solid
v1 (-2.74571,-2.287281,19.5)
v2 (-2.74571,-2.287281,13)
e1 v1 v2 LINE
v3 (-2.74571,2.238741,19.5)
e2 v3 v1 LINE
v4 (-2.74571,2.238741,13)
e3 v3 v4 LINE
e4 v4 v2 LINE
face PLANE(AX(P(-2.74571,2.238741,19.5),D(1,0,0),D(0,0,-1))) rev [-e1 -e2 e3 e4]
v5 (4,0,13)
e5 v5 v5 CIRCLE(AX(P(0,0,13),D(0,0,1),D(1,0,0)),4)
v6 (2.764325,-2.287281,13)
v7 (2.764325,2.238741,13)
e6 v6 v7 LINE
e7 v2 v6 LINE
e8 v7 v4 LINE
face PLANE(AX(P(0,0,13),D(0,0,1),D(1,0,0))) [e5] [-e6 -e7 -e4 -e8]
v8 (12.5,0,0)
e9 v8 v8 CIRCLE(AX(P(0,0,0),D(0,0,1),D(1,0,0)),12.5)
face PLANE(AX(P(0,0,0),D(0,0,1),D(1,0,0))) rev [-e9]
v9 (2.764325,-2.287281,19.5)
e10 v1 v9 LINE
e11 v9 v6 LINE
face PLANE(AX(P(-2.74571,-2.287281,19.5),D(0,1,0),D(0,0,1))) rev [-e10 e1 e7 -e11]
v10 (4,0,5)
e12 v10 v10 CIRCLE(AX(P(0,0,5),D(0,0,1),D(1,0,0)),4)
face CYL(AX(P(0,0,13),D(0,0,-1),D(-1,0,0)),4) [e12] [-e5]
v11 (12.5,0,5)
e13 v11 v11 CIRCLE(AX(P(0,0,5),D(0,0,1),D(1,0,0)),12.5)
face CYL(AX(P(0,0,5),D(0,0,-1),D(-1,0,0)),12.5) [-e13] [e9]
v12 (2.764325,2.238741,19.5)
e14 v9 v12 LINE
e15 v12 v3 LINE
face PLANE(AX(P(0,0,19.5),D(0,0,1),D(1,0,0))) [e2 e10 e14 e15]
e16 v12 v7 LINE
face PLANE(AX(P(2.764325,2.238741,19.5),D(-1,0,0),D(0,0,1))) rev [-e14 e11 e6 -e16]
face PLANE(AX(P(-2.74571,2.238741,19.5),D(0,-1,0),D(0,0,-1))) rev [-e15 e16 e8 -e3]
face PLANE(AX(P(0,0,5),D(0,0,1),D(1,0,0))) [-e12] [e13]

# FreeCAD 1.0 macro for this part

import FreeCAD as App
import Part
import Sketcher
from FreeCAD import Vector
Q = App.Units.Quantity

doc = App.newDocument("Part")
params = doc.addObject("Spreadsheet::Sheet", "Params")
for row, (alias, value) in enumerate([
    ("sketch1_diameter", "25 mm"),
    ("pad1_length", "5 mm"),
    ("sketch2_diameter", "8 mm"),
    ("pad2_length", "8 mm"),
    ("pad3_length", "6.5 mm"),
], start=1):
    params.set(f"A{row}", alias)
    params.set(f"B{row}", "=" + value)
    params.setAlias(f"B{row}", alias)

body = doc.addObject("PartDesign::Body", "Body")

sketch1 = doc.addObject("Sketcher::SketchObject", "Sketch")
body.addObject(sketch1)
sketch1.AttachmentSupport = (doc.XY_Plane, [""])
sketch1.MapMode = "FlatFace"
sketch1.addGeometry(Part.Circle(Vector(0, 0, 0), Vector(0, 0, 1), 12), False)
sketch1.addConstraint(Sketcher.Constraint("Coincident", 0, 3, -1, 1))
sketch1.addConstraint(Sketcher.Constraint("Diameter", 0, Q("25 mm")))
sketch1.setExpression("Constraints[1]", "Params.sketch1_diameter")
pad1 = doc.addObject("PartDesign::Pad", "Pad")
body.addObject(pad1)
pad1.Profile = sketch1
pad1.setExpression("Length", "Params.pad1_length")

sketch2 = doc.addObject("Sketcher::SketchObject", "Sketch001")
body.addObject(sketch2)
sketch2.AttachmentSupport = (doc.XY_Plane, [""])
sketch2.MapMode = "FlatFace"
sketch2.AttachmentOffset = App.Placement(Vector(0, 0, 5), App.Rotation())
sketch2.addGeometry(Part.Circle(Vector(0, 0, 0), Vector(0, 0, 1), 4), False)
sketch2.addConstraint(Sketcher.Constraint("Coincident", 0, 3, -1, 1))
sketch2.addConstraint(Sketcher.Constraint("Diameter", 0, Q("8 mm")))
sketch2.setExpression("Constraints[1]", "Params.sketch2_diameter")
pad2 = doc.addObject("PartDesign::Pad", "Pad001")
body.addObject(pad2)
pad2.Profile = sketch2
pad2.setExpression("Length", "Params.pad2_length")

sketch3 = doc.addObject("Sketcher::SketchObject", "Sketch002")
body.addObject(sketch3)
sketch3.AttachmentSupport = (doc.XY_Plane, [""])
sketch3.MapMode = "FlatFace"
sketch3.AttachmentOffset = App.Placement(Vector(0, 0, 13), App.Rotation())
sketch3.addGeometry(Part.LineSegment(Vector(-2.7, 2.2, 0), Vector(-2.7, -2.3, 0)), False)
sketch3.addGeometry(Part.LineSegment(Vector(-2.7, -2.3, 0), Vector(2.8, -2.3, 0)), False)
sketch3.addGeometry(Part.LineSegment(Vector(2.8, -2.3, 0), Vector(2.8, 2.2, 0)), False)
sketch3.addGeometry(Part.LineSegment(Vector(2.8, 2.2, 0), Vector(-2.7, 2.2, 0)), False)
sketch3.addConstraint(Sketcher.Constraint("Coincident", 0, 2, 1, 1))
sketch3.addConstraint(Sketcher.Constraint("Coincident", 1, 2, 2, 1))
sketch3.addConstraint(Sketcher.Constraint("Coincident", 2, 2, 3, 1))
sketch3.addConstraint(Sketcher.Constraint("Coincident", 3, 2, 0, 1))
sketch3.addConstraint(Sketcher.Constraint("Vertical", 0))
sketch3.addConstraint(Sketcher.Constraint("Horizontal", 1))
sketch3.addConstraint(Sketcher.Constraint("Vertical", 2))
sketch3.addConstraint(Sketcher.Constraint("Horizontal", 3))
sketch3.addConstraint(Sketcher.Constraint("DistanceY", 0, 2, 0, 1, Q("4.526022 mm")))
sketch3.addConstraint(Sketcher.Constraint("DistanceX", 1, 1, 1, 2, Q("5.510035 mm")))
sketch3.addConstraint(Sketcher.Constraint("DistanceX", 0, 2, -1, 1, Q("2.74571 mm")))
sketch3.addConstraint(Sketcher.Constraint("DistanceY", 0, 2, -1, 1, Q("2.287281 mm")))
pad3 = doc.addObject("PartDesign::Pad", "Pad002")
body.addObject(pad3)
pad3.Profile = sketch3
pad3.setExpression("Length", "Params.pad3_length")

doc.recompute()
